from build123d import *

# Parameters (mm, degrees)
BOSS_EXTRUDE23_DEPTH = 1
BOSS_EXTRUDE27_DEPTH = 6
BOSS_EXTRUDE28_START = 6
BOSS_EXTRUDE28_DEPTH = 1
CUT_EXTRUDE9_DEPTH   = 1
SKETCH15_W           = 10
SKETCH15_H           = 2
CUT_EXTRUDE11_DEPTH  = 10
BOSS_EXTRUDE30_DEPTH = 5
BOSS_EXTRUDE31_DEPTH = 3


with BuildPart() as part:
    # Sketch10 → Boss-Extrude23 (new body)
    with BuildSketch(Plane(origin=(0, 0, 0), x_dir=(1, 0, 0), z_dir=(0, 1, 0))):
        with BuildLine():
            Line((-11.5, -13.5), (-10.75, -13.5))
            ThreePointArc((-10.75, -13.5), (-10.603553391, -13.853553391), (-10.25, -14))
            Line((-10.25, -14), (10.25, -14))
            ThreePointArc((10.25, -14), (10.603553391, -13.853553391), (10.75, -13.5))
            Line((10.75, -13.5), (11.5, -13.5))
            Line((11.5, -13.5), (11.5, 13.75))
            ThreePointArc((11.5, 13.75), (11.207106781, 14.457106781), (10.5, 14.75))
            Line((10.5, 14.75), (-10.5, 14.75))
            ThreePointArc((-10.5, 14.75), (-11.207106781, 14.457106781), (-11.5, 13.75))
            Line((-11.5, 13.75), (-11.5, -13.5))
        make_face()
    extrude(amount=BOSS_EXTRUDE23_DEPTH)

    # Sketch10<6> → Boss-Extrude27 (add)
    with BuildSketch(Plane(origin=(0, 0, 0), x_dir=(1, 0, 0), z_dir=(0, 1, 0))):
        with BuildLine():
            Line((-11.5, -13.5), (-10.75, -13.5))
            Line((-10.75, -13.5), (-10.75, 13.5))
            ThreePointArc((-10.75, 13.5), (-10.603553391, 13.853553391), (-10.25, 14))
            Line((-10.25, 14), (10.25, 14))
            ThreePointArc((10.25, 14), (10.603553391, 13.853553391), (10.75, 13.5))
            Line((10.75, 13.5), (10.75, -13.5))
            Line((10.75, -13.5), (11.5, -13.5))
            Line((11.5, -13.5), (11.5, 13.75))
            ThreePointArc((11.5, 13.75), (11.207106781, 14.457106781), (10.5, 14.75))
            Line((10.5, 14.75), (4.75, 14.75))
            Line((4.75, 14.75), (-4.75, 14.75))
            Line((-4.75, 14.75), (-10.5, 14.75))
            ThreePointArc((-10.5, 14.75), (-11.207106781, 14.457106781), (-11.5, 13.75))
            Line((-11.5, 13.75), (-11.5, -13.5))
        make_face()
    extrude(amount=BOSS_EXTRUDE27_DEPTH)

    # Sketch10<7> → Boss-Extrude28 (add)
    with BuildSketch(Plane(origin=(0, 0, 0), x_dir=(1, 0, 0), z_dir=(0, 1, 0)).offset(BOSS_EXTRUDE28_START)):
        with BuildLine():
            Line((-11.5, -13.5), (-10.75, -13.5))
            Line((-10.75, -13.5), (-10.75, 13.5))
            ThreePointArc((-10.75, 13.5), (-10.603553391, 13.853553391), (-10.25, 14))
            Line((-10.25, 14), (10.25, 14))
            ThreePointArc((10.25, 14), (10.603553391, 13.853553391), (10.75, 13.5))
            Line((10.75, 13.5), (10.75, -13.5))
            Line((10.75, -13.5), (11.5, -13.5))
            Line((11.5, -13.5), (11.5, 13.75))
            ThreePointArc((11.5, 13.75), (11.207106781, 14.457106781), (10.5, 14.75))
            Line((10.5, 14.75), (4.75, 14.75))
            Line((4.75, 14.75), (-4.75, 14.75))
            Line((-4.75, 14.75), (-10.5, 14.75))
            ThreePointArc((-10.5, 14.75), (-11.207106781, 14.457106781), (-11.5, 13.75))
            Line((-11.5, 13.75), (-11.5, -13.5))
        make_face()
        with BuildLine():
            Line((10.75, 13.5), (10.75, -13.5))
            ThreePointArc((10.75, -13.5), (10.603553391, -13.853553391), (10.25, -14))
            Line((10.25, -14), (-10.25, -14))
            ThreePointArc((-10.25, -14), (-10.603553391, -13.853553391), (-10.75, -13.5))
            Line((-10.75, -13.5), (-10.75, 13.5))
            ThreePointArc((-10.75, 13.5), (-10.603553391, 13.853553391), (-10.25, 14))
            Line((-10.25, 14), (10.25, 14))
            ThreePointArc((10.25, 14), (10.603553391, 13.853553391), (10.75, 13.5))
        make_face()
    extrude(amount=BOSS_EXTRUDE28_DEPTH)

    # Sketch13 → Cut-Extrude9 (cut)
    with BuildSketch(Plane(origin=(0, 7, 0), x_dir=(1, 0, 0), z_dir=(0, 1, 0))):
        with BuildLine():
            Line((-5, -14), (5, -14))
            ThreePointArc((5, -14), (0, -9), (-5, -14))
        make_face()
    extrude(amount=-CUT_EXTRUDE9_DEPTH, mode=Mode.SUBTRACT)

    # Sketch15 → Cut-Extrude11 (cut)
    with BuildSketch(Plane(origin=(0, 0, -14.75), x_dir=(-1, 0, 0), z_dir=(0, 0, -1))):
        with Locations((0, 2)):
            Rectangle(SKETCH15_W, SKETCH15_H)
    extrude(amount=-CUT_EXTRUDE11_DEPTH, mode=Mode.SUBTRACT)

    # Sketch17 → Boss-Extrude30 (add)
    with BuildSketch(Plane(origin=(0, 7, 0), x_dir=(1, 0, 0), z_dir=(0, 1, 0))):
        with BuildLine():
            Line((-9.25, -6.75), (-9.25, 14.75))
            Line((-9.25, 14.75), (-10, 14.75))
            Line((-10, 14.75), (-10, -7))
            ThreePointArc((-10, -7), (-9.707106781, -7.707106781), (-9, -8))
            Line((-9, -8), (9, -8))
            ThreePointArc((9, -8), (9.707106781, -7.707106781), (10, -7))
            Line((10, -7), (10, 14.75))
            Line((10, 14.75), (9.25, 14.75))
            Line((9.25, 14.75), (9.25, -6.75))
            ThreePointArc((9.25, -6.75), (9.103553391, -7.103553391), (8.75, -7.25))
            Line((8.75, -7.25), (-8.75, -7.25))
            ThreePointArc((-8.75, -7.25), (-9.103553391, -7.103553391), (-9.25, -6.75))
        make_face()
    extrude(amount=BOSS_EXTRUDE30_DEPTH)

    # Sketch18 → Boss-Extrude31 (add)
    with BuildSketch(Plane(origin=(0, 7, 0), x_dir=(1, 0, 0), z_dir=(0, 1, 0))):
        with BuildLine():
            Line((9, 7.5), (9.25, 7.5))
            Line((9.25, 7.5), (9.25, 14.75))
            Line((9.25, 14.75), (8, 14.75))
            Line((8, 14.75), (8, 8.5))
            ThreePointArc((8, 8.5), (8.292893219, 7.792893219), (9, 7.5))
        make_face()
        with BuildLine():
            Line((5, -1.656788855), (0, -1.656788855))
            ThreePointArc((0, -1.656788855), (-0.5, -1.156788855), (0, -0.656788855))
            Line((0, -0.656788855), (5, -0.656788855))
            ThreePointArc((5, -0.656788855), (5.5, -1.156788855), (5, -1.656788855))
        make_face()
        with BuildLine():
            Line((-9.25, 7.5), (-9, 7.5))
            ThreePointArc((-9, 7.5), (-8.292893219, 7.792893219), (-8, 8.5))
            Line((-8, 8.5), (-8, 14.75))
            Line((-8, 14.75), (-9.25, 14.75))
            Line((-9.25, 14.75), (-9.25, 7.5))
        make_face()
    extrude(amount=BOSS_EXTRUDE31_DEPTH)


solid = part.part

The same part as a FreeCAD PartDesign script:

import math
import FreeCAD as App
import Part
import Sketcher
from FreeCAD import Vector

doc = App.newDocument("Part")
body = doc.addObject("PartDesign::Body", "Body")

sketch1 = body.newObject("Sketcher::SketchObject", "Sketch")
sketch1.AttachmentSupport = (doc.getObject("XZ_Plane"), [""])
sketch1.MapMode = "FlatFace"
sketch1.addGeometry(Part.LineSegment(Vector(-11.5, 13.5, 0), Vector(-10.75, 13.5, 0)), False)
sketch1.addGeometry(Part.ArcOfCircle(Part.Circle(Vector(-10.25, 13.5, 0), Vector(0, 0, 1), 0.5), math.radians(90), math.radians(180)), False)
sketch1.addGeometry(Part.LineSegment(Vector(-10.25, 14, 0), Vector(10.25, 14, 0)), False)
sketch1.addGeometry(Part.ArcOfCircle(Part.Circle(Vector(10.25, 13.5, 0), Vector(0, 0, 1), 0.5), math.radians(0), math.radians(90)), False)
sketch1.addGeometry(Part.LineSegment(Vector(10.75, 13.5, 0), Vector(11.5, 13.5, 0)), False)
sketch1.addGeometry(Part.LineSegment(Vector(11.5, 13.5, 0), Vector(11.5, -13.75, 0)), False)
sketch1.addGeometry(Part.ArcOfCircle(Part.Circle(Vector(10.5, -13.75, 0), Vector(0, 0, 1), 1), math.radians(-90), math.radians(0)), False)
sketch1.addGeometry(Part.LineSegment(Vector(10.5, -14.75, 0), Vector(-10.5, -14.75, 0)), False)
sketch1.addGeometry(Part.ArcOfCircle(Part.Circle(Vector(-10.5, -13.75, 0), Vector(0, 0, 1), 1), math.radians(-180), math.radians(-90)), False)
sketch1.addGeometry(Part.LineSegment(Vector(-11.5, -13.75, 0), Vector(-11.5, 13.5, 0)), False)
sketch1.addConstraint(Sketcher.Constraint("Coincident", 0, 2, 1, 2))
sketch1.addConstraint(Sketcher.Constraint("Tangent", 1, 1, 2, 1))
sketch1.addConstraint(Sketcher.Constraint("Tangent", 2, 2, 3, 2))
sketch1.addConstraint(Sketcher.Constraint("Coincident", 3, 1, 4, 1))
sketch1.addConstraint(Sketcher.Constraint("Coincident", 4, 2, 5, 1))
sketch1.addConstraint(Sketcher.Constraint("Tangent", 5, 2, 6, 2))
sketch1.addConstraint(Sketcher.Constraint("Tangent", 6, 1, 7, 1))
sketch1.addConstraint(Sketcher.Constraint("Tangent", 7, 2, 8, 2))
sketch1.addConstraint(Sketcher.Constraint("Tangent", 8, 1, 9, 1))
sketch1.addConstraint(Sketcher.Constraint("Coincident", 9, 2, 0, 1))
sketch1.addConstraint(Sketcher.Constraint("Horizontal", 0))
sketch1.addConstraint(Sketcher.Constraint("Horizontal", 2))
sketch1.addConstraint(Sketcher.Constraint("Horizontal", 4))
sketch1.addConstraint(Sketcher.Constraint("Vertical", 5))
sketch1.addConstraint(Sketcher.Constraint("Horizontal", 7))
sketch1.addConstraint(Sketcher.Constraint("Vertical", 9))
sketch1.addConstraint(Sketcher.Constraint("Equal", 1, 3))
sketch1.addConstraint(Sketcher.Constraint("Equal", 6, 8))
sketch1.addConstraint(Sketcher.Constraint("Symmetric", 0, 2, 3, 1, -2))
sketch1.addConstraint(Sketcher.Constraint("Horizontal", 3, 3, 0, 2))
sketch1.addConstraint(Sketcher.Constraint("Equal", 0, 4))
sketch1.addConstraint(Sketcher.Constraint("Radius", 6, 1.0))
sketch1.addConstraint(Sketcher.Constraint("Radius", 1, 0.5))
sketch1.addConstraint(Sketcher.Constraint("DistanceX", 7, 2, 7, 1, 21.0))
sketch1.addConstraint(Sketcher.Constraint("DistanceX", 2, 1, 2, 2, 20.5))
sketch1.addConstraint(Sketcher.Constraint("DistanceY", -1, 1, 1, 1, 14.0))
sketch1.addConstraint(Sketcher.Constraint("DistanceY", 5, 2, 5, 1, 27.25))
pad1 = body.newObject("PartDesign::Pad", "Pad")
pad1.Profile = sketch1
pad1.Length = 1
pad1.Reversed = True

sketch2 = body.newObject("Sketcher::SketchObject", "Sketch001")
sketch2.AttachmentSupport = (doc.getObject("XZ_Plane"), [""])
sketch2.MapMode = "FlatFace"
sketch2.addGeometry(Part.LineSegment(Vector(-11.5, 13.5, 0), Vector(-10.75, 13.5, 0)), False)
sketch2.addGeometry(Part.LineSegment(Vector(-10.75, 13.5, 0), Vector(-10.75, -13.5, 0)), False)
sketch2.addGeometry(Part.ArcOfCircle(Part.Circle(Vector(-10.25, -13.5, 0), Vector(0, 0, 1), 0.5), math.radians(180), math.radians(270)), False)
sketch2.addGeometry(Part.LineSegment(Vector(-10.25, -14, 0), Vector(10.25, -14, 0)), False)
sketch2.addGeometry(Part.ArcOfCircle(Part.Circle(Vector(10.25, -13.5, 0), Vector(0, 0, 1), 0.5), math.radians(-90), math.radians(0)), False)
sketch2.addGeometry(Part.LineSegment(Vector(10.75, -13.5, 0), Vector(10.75, 13.5, 0)), False)
sketch2.addGeometry(Part.LineSegment(Vector(10.75, 13.5, 0), Vector(11.5, 13.5, 0)), False)
sketch2.addGeometry(Part.LineSegment(Vector(11.5, 13.5, 0), Vector(11.5, -13.75, 0)), False)
sketch2.addGeometry(Part.ArcOfCircle(Part.Circle(Vector(10.5, -13.75, 0), Vector(0, 0, 1), 1), math.radians(-90), math.radians(0)), False)
sketch2.addGeometry(Part.LineSegment(Vector(10.5, -14.75, 0), Vector(-10.5, -14.75, 0)), False)
sketch2.addGeometry(Part.ArcOfCircle(Part.Circle(Vector(-10.5, -13.75, 0), Vector(0, 0, 1), 1), math.radians(-180), math.radians(-90)), False)
sketch2.addGeometry(Part.LineSegment(Vector(-11.5, -13.75, 0), Vector(-11.5, 13.5, 0)), False)
sketch2.addConstraint(Sketcher.Constraint("Coincident", 0, 2, 1, 1))
sketch2.addConstraint(Sketcher.Constraint("Tangent", 1, 2, 2, 1))
sketch2.addConstraint(Sketcher.Constraint("Tangent", 2, 2, 3, 1))
sketch2.addConstraint(Sketcher.Constraint("Tangent", 3, 2, 4, 1))
sketch2.addConstraint(Sketcher.Constraint("Tangent", 4, 2, 5, 1))
sketch2.addConstraint(Sketcher.Constraint("Coincident", 5, 2, 6, 1))
sketch2.addConstraint(Sketcher.Constraint("Coincident", 6, 2, 7, 1))
sketch2.addConstraint(Sketcher.Constraint("Tangent", 7, 2, 8, 2))
sketch2.addConstraint(Sketcher.Constraint("Tangent", 8, 1, 9, 1))
sketch2.addConstraint(Sketcher.Constraint("Tangent", 9, 2, 10, 2))
sketch2.addConstraint(Sketcher.Constraint("Tangent", 10, 1, 11, 1))
sketch2.addConstraint(Sketcher.Constraint("Coincident", 11, 2, 0, 1))
sketch2.addConstraint(Sketcher.Constraint("Horizontal", 0))
sketch2.addConstraint(Sketcher.Constraint("Vertical", 1))
sketch2.addConstraint(Sketcher.Constraint("Horizontal", 3))
sketch2.addConstraint(Sketcher.Constraint("Vertical", 5))
sketch2.addConstraint(Sketcher.Constraint("Horizontal", 6))
sketch2.addConstraint(Sketcher.Constraint("Vertical", 7))
sketch2.addConstraint(Sketcher.Constraint("Horizontal", 9))
sketch2.addConstraint(Sketcher.Constraint("Vertical", 11))
sketch2.addConstraint(Sketcher.Constraint("Equal", 2, 4))
sketch2.addConstraint(Sketcher.Constraint("Equal", 8, 10))
sketch2.addConstraint(Sketcher.Constraint("Symmetric", 0, 2, 4, 2, -1, 1))
sketch2.addConstraint(Sketcher.Constraint("Symmetric", 6, 2, 11, 2, -2))
sketch2.addConstraint(Sketcher.Constraint("Radius", 8, 1.0))
sketch2.addConstraint(Sketcher.Constraint("Radius", 2, 0.5))
sketch2.addConstraint(Sketcher.Constraint("DistanceX", 9, 2, 9, 1, 21.0))
sketch2.addConstraint(Sketcher.Constraint("DistanceY", 1, 2, 1, 1, 27.0))
sketch2.addConstraint(Sketcher.Constraint("DistanceX", 3, 1, 3, 2, 20.5))
sketch2.addConstraint(Sketcher.Constraint("DistanceY", 7, 2, 7, 1, 27.25))
pad2 = body.newObject("PartDesign::Pad", "Pad001")
pad2.Profile = sketch2
pad2.Length = 6
pad2.Reversed = True

sketch3 = body.newObject("Sketcher::SketchObject", "Sketch002")
sketch3.AttachmentSupport = (doc.getObject("XZ_Plane"), [""])
sketch3.MapMode = "FlatFace"
sketch3.AttachmentOffset = App.Placement(Vector(0, 0, -6), App.Rotation())
sketch3.addGeometry(Part.LineSegment(Vector(-11.5, 13.5, 0), Vector(-10.75, 13.5, 0)), False)
sketch3.addGeometry(Part.ArcOfCircle(Part.Circle(Vector(-10.25, 13.5, 0), Vector(0, 0, 1), 0.5), math.radians(90), math.radians(180)), False)
sketch3.addGeometry(Part.LineSegment(Vector(-10.25, 14, 0), Vector(10.25, 14, 0)), False)
sketch3.addGeometry(Part.ArcOfCircle(Part.Circle(Vector(10.25, 13.5, 0), Vector(0, 0, 1), 0.5), math.radians(0), math.radians(90)), False)
sketch3.addGeometry(Part.LineSegment(Vector(10.75, 13.5, 0), Vector(11.5, 13.5, 0)), False)
sketch3.addGeometry(Part.LineSegment(Vector(11.5, 13.5, 0), Vector(11.5, -13.75, 0)), False)
sketch3.addGeometry(Part.ArcOfCircle(Part.Circle(Vector(10.5, -13.75, 0), Vector(0, 0, 1), 1), math.radians(-90), math.radians(0)), False)
sketch3.addGeometry(Part.LineSegment(Vector(10.5, -14.75, 0), Vector(-10.5, -14.75, 0)), False)
sketch3.addGeometry(Part.ArcOfCircle(Part.Circle(Vector(-10.5, -13.75, 0), Vector(0, 0, 1), 1), math.radians(-180), math.radians(-90)), False)
sketch3.addGeometry(Part.LineSegment(Vector(-11.5, -13.75, 0), Vector(-11.5, 13.5, 0)), False)
sketch3.addConstraint(Sketcher.Constraint("Coincident", 0, 2, 1, 2))
sketch3.addConstraint(Sketcher.Constraint("Tangent", 1, 1, 2, 1))
sketch3.addConstraint(Sketcher.Constraint("Tangent", 2, 2, 3, 2))
sketch3.addConstraint(Sketcher.Constraint("Coincident", 3, 1, 4, 1))
sketch3.addConstraint(Sketcher.Constraint("Coincident", 4, 2, 5, 1))
sketch3.addConstraint(Sketcher.Constraint("Tangent", 5, 2, 6, 2))
sketch3.addConstraint(Sketcher.Constraint("Tangent", 6, 1, 7, 1))
sketch3.addConstraint(Sketcher.Constraint("Tangent", 7, 2, 8, 2))
sketch3.addConstraint(Sketcher.Constraint("Tangent", 8, 1, 9, 1))
sketch3.addConstraint(Sketcher.Constraint("Coincident", 9, 2, 0, 1))
sketch3.addConstraint(Sketcher.Constraint("Horizontal", 0))
sketch3.addConstraint(Sketcher.Constraint("Horizontal", 2))
sketch3.addConstraint(Sketcher.Constraint("Horizontal", 4))
sketch3.addConstraint(Sketcher.Constraint("Vertical", 5))
sketch3.addConstraint(Sketcher.Constraint("Horizontal", 7))
sketch3.addConstraint(Sketcher.Constraint("Vertical", 9))
sketch3.addConstraint(Sketcher.Constraint("Equal", 1, 3))
sketch3.addConstraint(Sketcher.Constraint("Equal", 6, 8))
sketch3.addConstraint(Sketcher.Constraint("Symmetric", 0, 2, 3, 1, -2))
sketch3.addConstraint(Sketcher.Constraint("Horizontal", 3, 3, 0, 2))
sketch3.addConstraint(Sketcher.Constraint("Equal", 0, 4))
sketch3.addConstraint(Sketcher.Constraint("Radius", 6, 1.0))
sketch3.addConstraint(Sketcher.Constraint("Radius", 1, 0.5))
sketch3.addConstraint(Sketcher.Constraint("DistanceX", 7, 2, 7, 1, 21.0))
sketch3.addConstraint(Sketcher.Constraint("DistanceX", 2, 1, 2, 2, 20.5))
sketch3.addConstraint(Sketcher.Constraint("DistanceY", -1, 1, 1, 1, 14.0))
sketch3.addConstraint(Sketcher.Constraint("DistanceY", 5, 2, 5, 1, 27.25))
pad3 = body.newObject("PartDesign::Pad", "Pad002")
pad3.Profile = sketch3
pad3.Length = 1
pad3.Reversed = True

sketch4 = body.newObject("Sketcher::SketchObject", "Sketch003")
sketch4.AttachmentSupport = (doc.getObject("XZ_Plane"), [""])
sketch4.MapMode = "FlatFace"
sketch4.AttachmentOffset = App.Placement(Vector(0, 0, -7), App.Rotation())
sketch4.addGeometry(Part.LineSegment(Vector(-5, 14, 0), Vector(5, 14, 0)), False)
sketch4.addGeometry(Part.ArcOfCircle(Part.Circle(Vector(0, 14, 0), Vector(0, 0, 1), 5), math.radians(180), math.radians(360)), False)
sketch4.addConstraint(Sketcher.Constraint("Coincident", 0, 1, 1, 1))
sketch4.addConstraint(Sketcher.Constraint("Coincident", 1, 2, 0, 2))
sketch4.addConstraint(Sketcher.Constraint("Horizontal", 0))
sketch4.addConstraint(Sketcher.Constraint("PointOnObject", 1, 3, -2))
sketch4.addConstraint(Sketcher.Constraint("Horizontal", 1, 3, 0, 1))
sketch4.addConstraint(Sketcher.Constraint("Radius", 1, 5.0))
sketch4.addConstraint(Sketcher.Constraint("DistanceY", -1, 1, 1, 3, 14.0))
pocket1 = body.newObject("PartDesign::Pocket", "Pocket")
pocket1.Profile = sketch4
pocket1.Length = 1
pocket1.Reversed = True

sketch5 = body.newObject("Sketcher::SketchObject", "Sketch004")
sketch5.AttachmentSupport = (doc.getObject("XY_Plane"), [""])
sketch5.MapMode = "FlatFace"
sketch5.AttachmentOffset = App.Placement(Vector(0, 0, -14.75), App.Rotation())
sketch5.addGeometry(Part.LineSegment(Vector(5, 3, 0), Vector(5, 1, 0)), False)
sketch5.addGeometry(Part.LineSegment(Vector(5, 1, 0), Vector(-5, 1, 0)), False)
sketch5.addGeometry(Part.LineSegment(Vector(-5, 1, 0), Vector(-5, 3, 0)), False)
sketch5.addGeometry(Part.LineSegment(Vector(-5, 3, 0), Vector(5, 3, 0)), False)
sketch5.addConstraint(Sketcher.Constraint("Coincident", 0, 2, 1, 1))
sketch5.addConstraint(Sketcher.Constraint("Coincident", 1, 2, 2, 1))
sketch5.addConstraint(Sketcher.Constraint("Coincident", 2, 2, 3, 1))
sketch5.addConstraint(Sketcher.Constraint("Coincident", 3, 2, 0, 1))
sketch5.addConstraint(Sketcher.Constraint("Vertical", 0))
sketch5.addConstraint(Sketcher.Constraint("Horizontal", 1))
sketch5.addConstraint(Sketcher.Constraint("Vertical", 2))
sketch5.addConstraint(Sketcher.Constraint("Horizontal", 3))
sketch5.addConstraint(Sketcher.Constraint("DistanceX", 1, 2, 1, 1, 10.0))
sketch5.addConstraint(Sketcher.Constraint("DistanceY", 0, 2, 0, 1, 2.0))
sketch5.addConstraint(Sketcher.Constraint("DistanceX", -1, 1, 0, 2, 5.0))
sketch5.addConstraint(Sketcher.Constraint("DistanceY", -1, 1, 0, 2, 1.0))
pocket2 = body.newObject("PartDesign::Pocket", "Pocket001")
pocket2.Profile = sketch5
pocket2.Length = 10
pocket2.Reversed = True

sketch6 = body.newObject("Sketcher::SketchObject", "Sketch005")
sketch6.AttachmentSupport = (doc.getObject("XZ_Plane"), [""])
sketch6.MapMode = "FlatFace"
sketch6.AttachmentOffset = App.Placement(Vector(0, 0, -7), App.Rotation())
sketch6.addGeometry(Part.LineSegment(Vector(-9.25, 6.75, 0), Vector(-9.25, -14.75, 0)), False)
sketch6.addGeometry(Part.LineSegment(Vector(-9.25, -14.75, 0), Vector(-10, -14.75, 0)), False)
sketch6.addGeometry(Part.LineSegment(Vector(-10, -14.75, 0), Vector(-10, 7, 0)), False)
sketch6.addGeometry(Part.ArcOfCircle(Part.Circle(Vector(-9, 7, 0), Vector(0, 0, 1), 1), math.radians(90), math.radians(180)), False)
sketch6.addGeometry(Part.LineSegment(Vector(-9, 8, 0), Vector(9, 8, 0)), False)
sketch6.addGeometry(Part.ArcOfCircle(Part.Circle(Vector(9, 7, 0), Vector(0, 0, 1), 1), math.radians(0), math.radians(90)), False)
sketch6.addGeometry(Part.LineSegment(Vector(10, 7, 0), Vector(10, -14.75, 0)), False)
sketch6.addGeometry(Part.LineSegment(Vector(10, -14.75, 0), Vector(9.25, -14.75, 0)), False)
sketch6.addGeometry(Part.LineSegment(Vector(9.25, -14.75, 0), Vector(9.25, 6.75, 0)), False)
sketch6.addGeometry(Part.ArcOfCircle(Part.Circle(Vector(8.75, 6.75, 0), Vector(0, 0, 1), 0.5), math.radians(0), math.radians(90)), False)
sketch6.addGeometry(Part.LineSegment(Vector(8.75, 7.25, 0), Vector(-8.75, 7.25, 0)), False)
sketch6.addGeometry(Part.ArcOfCircle(Part.Circle(Vector(-8.75, 6.75, 0), Vector(0, 0, 1), 0.5), math.radians(90), math.radians(180)), False)
sketch6.addConstraint(Sketcher.Constraint("Coincident", 0, 2, 1, 1))
sketch6.addConstraint(Sketcher.Constraint("Coincident", 1, 2, 2, 1))
sketch6.addConstraint(Sketcher.Constraint("Tangent", 2, 2, 3, 2))
sketch6.addConstraint(Sketcher.Constraint("Tangent", 3, 1, 4, 1))
sketch6.addConstraint(Sketcher.Constraint("Tangent", 4, 2, 5, 2))
sketch6.addConstraint(Sketcher.Constraint("Tangent", 5, 1, 6, 1))
sketch6.addConstraint(Sketcher.Constraint("Coincident", 6, 2, 7, 1))
sketch6.addConstraint(Sketcher.Constraint("Coincident", 7, 2, 8, 1))
sketch6.addConstraint(Sketcher.Constraint("Tangent", 8, 2, 9, 1))
sketch6.addConstraint(Sketcher.Constraint("Tangent", 9, 2, 10, 1))
sketch6.addConstraint(Sketcher.Constraint("Tangent", 10, 2, 11, 1))
sketch6.addConstraint(Sketcher.Constraint("Tangent", 11, 2, 0, 1))
sketch6.addConstraint(Sketcher.Constraint("Vertical", 0))
sketch6.addConstraint(Sketcher.Constraint("Horizontal", 1))
sketch6.addConstraint(Sketcher.Constraint("Vertical", 2))
sketch6.addConstraint(Sketcher.Constraint("Horizontal", 4))
sketch6.addConstraint(Sketcher.Constraint("Vertical", 6))
sketch6.addConstraint(Sketcher.Constraint("Horizontal", 7))
sketch6.addConstraint(Sketcher.Constraint("Vertical", 8))
sketch6.addConstraint(Sketcher.Constraint("Horizontal", 10))
sketch6.addConstraint(Sketcher.Constraint("Equal", 3, 5))
sketch6.addConstraint(Sketcher.Constraint("Equal", 9, 11))
sketch6.addConstraint(Sketcher.Constraint("Symmetric", 1, 2, 6, 2, -2))
sketch6.addConstraint(Sketcher.Constraint("Equal", 1, 7))
sketch6.addConstraint(Sketcher.Constraint("Radius", 3, 1.0))
sketch6.addConstraint(Sketcher.Constraint("Radius", 9, 0.5))
sketch6.addConstraint(Sketcher.Constraint("DistanceX", 4, 1, 4, 2, 18.0))
sketch6.addConstraint(Sketcher.Constraint("DistanceX", 10, 2, 10, 1, 17.5))
sketch6.addConstraint(Sketcher.Constraint("DistanceY", 0, 2, 0, 1, 21.5))
sketch6.addConstraint(Sketcher.Constraint("DistanceY", -1, 1, 3, 3, 7.0))
sketch6.addConstraint(Sketcher.Constraint("DistanceY", 2, 1, 2, 2, 21.75))
pad4 = body.newObject("PartDesign::Pad", "Pad003")
pad4.Profile = sketch6
pad4.Length = 5
pad4.Reversed = True

sketch7 = body.newObject("Sketcher::SketchObject", "Sketch006")
sketch7.AttachmentSupport = (doc.getObject("XZ_Plane"), [""])
sketch7.MapMode = "FlatFace"
sketch7.AttachmentOffset = App.Placement(Vector(0, 0, -7), App.Rotation())
sketch7.addGeometry(Part.LineSegment(Vector(9, -7.5, 0), Vector(9.25, -7.5, 0)), False)
sketch7.addGeometry(Part.LineSegment(Vector(9.25, -7.5, 0), Vector(9.25, -14.75, 0)), False)
sketch7.addGeometry(Part.LineSegment(Vector(9.25, -14.75, 0), Vector(8, -14.75, 0)), False)
sketch7.addGeometry(Part.LineSegment(Vector(8, -14.75, 0), Vector(8, -8.5, 0)), False)
sketch7.addGeometry(Part.ArcOfCircle(Part.Circle(Vector(9, -8.5, 0), Vector(0, 0, 1), 1), math.radians(90), math.radians(180)), False)
sketch7.addGeometry(Part.LineSegment(Vector(0, 1.66, 0), Vector(5, 1.66, 0)), False)
sketch7.addGeometry(Part.ArcOfCircle(Part.Circle(Vector(5, 1.16, 0), Vector(0, 0, 1), 0.5), math.radians(-90), math.radians(90)), False)
sketch7.addGeometry(Part.LineSegment(Vector(5, 0.66, 0), Vector(0, 0.66, 0)), False)
sketch7.addGeometry(Part.ArcOfCircle(Part.Circle(Vector(0, 1.16, 0), Vector(0, 0, 1), 0.5), math.radians(90), math.radians(270)), False)
sketch7.addGeometry(Part.LineSegment(Vector(-9.25, -7.5, 0), Vector(-9, -7.5, 0)), False)
sketch7.addGeometry(Part.ArcOfCircle(Part.Circle(Vector(-9, -8.5, 0), Vector(0, 0, 1), 1), math.radians(0), math.radians(90)), False)
sketch7.addGeometry(Part.LineSegment(Vector(-8, -8.5, 0), Vector(-8, -14.75, 0)), False)
sketch7.addGeometry(Part.LineSegment(Vector(-8, -14.75, 0), Vector(-9.25, -14.75, 0)), False)
sketch7.addGeometry(Part.LineSegment(Vector(-9.25, -14.75, 0), Vector(-9.25, -7.5, 0)), False)
sketch7.addConstraint(Sketcher.Constraint("Coincident", 0, 2, 1, 1))
sketch7.addConstraint(Sketcher.Constraint("Coincident", 1, 2, 2, 1))
sketch7.addConstraint(Sketcher.Constraint("Coincident", 2, 2, 3, 1))
sketch7.addConstraint(Sketcher.Constraint("Tangent", 3, 2, 4, 2))
sketch7.addConstraint(Sketcher.Constraint("Tangent", 4, 1, 0, 1))
sketch7.addConstraint(Sketcher.Constraint("Tangent", 5, 2, 6, 2))
sketch7.addConstraint(Sketcher.Constraint("Tangent", 6, 1, 7, 1))
sketch7.addConstraint(Sketcher.Constraint("Tangent", 7, 2, 8, 2))
sketch7.addConstraint(Sketcher.Constraint("Tangent", 8, 1, 5, 1))
sketch7.addConstraint(Sketcher.Constraint("Tangent", 9, 2, 10, 2))
sketch7.addConstraint(Sketcher.Constraint("Tangent", 10, 1, 11, 1))
sketch7.addConstraint(Sketcher.Constraint("Coincident", 11, 2, 12, 1))
sketch7.addConstraint(Sketcher.Constraint("Coincident", 12, 2, 13, 1))
sketch7.addConstraint(Sketcher.Constraint("Coincident", 13, 2, 9, 1))
sketch7.addConstraint(Sketcher.Constraint("Horizontal", 0))
sketch7.addConstraint(Sketcher.Constraint("Vertical", 1))
sketch7.addConstraint(Sketcher.Constraint("Horizontal", 2))
sketch7.addConstraint(Sketcher.Constraint("Vertical", 3))
sketch7.addConstraint(Sketcher.Constraint("Horizontal", 5))
sketch7.addConstraint(Sketcher.Constraint("Horizontal", 7))
sketch7.addConstraint(Sketcher.Constraint("Horizontal", 9))
sketch7.addConstraint(Sketcher.Constraint("Vertical", 11))
sketch7.addConstraint(Sketcher.Constraint("Horizontal", 12))
sketch7.addConstraint(Sketcher.Constraint("Vertical", 13))
sketch7.addConstraint(Sketcher.Constraint("Equal", 4, 10))
sketch7.addConstraint(Sketcher.Constraint("Symmetric", 4, 3, 10, 3, -2))
sketch7.addConstraint(Sketcher.Constraint("Symmetric", 1, 2, 12, 2, -2))
sketch7.addConstraint(Sketcher.Constraint("PointOnObject", 8, 3, -2))
sketch7.addConstraint(Sketcher.Constraint("Radius", 4, 1.0))
sketch7.addConstraint(Sketcher.Constraint("Radius", 6, 0.5))
sketch7.addConstraint(Sketcher.Constraint("DistanceX", 5, 1, 5, 2, 5.0))
sketch7.addConstraint(Sketcher.Constraint("DistanceX", -1, 1, 4, 3, 9.0))
sketch7.addConstraint(Sketcher.Constraint("DistanceX", 0, 1, 0, 2, 0.25))
sketch7.addConstraint(Sketcher.Constraint("DistanceY", 1, 2, 1, 1, 7.25))
sketch7.addConstraint(Sketcher.Constraint("DistanceY", 4, 3, -1, 1, 8.5))
sketch7.addConstraint(Sketcher.Constraint("DistanceY", -1, 1, 6, 3, 1.156789))
pad5 = body.newObject("PartDesign::Pad", "Pad004")
pad5.Profile = sketch7
pad5.Length = 3
pad5.Reversed = True

doc.recompute()
